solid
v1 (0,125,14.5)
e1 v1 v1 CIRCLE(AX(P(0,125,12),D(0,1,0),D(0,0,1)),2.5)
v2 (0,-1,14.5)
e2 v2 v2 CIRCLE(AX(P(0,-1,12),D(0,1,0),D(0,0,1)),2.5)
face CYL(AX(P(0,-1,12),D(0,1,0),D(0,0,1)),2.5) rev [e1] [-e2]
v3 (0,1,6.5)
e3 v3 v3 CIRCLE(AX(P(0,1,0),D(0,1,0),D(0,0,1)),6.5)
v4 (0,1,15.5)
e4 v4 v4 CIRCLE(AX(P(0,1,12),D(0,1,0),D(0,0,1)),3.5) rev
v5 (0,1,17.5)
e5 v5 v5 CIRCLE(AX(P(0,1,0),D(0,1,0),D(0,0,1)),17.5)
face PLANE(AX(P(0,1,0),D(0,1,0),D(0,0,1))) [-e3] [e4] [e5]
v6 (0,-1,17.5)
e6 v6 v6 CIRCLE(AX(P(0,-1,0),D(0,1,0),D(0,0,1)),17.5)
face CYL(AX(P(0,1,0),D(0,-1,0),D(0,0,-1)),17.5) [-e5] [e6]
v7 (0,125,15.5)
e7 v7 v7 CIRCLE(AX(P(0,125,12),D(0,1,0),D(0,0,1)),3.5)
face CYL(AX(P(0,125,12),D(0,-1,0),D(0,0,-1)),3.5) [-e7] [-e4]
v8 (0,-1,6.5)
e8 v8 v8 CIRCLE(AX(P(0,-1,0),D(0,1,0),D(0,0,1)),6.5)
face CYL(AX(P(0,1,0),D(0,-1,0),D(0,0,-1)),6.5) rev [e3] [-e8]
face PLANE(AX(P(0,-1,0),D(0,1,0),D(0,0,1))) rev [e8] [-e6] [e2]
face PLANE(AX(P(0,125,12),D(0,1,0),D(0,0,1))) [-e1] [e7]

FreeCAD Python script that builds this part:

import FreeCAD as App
import Part
import Sketcher
Q = App.Units.Quantity

doc = App.newDocument("Part")
body = doc.addObject("PartDesign::Body", "Body")

sketch1 = body.newObject("Sketcher::SketchObject", "Sketch")
sketch1.AttachmentSupport = (doc.getObject("XZ_Plane"), [""])
sketch1.MapMode = "FlatFace"
sketch1.addGeometry([
    Part.Circle(App.Vector(0, 0, 0), App.Vector(0, 0, 1), 18),
    Part.Circle(App.Vector(0, 0, 0), App.Vector(0, 0, 1), 6),
], False)
sketch1.addConstraint([
    Sketcher.Constraint("Coincident", 0, 3, -1, 1),
    Sketcher.Constraint("Coincident", 1, 3, -1, 1),
    Sketcher.Constraint("Diameter", 0, Q("35 mm")),
    Sketcher.Constraint("Diameter", 1, Q("13 mm")),
])
pad1 = body.newObject("PartDesign::Pad", "Pad")
pad1.Profile = sketch1
pad1.Length = 2
pad1.Midplane = True

sketch2 = body.newObject("Sketcher::SketchObject", "Sketch001")
sketch2.AttachmentSupport = (doc.getObject("XZ_Plane"), [""])
sketch2.MapMode = "FlatFace"
sketch2.addGeometry(Part.Circle(App.Vector(0, 12, 0), App.Vector(0, 0, 1), 3.5), False)
sketch2.addConstraint([
    Sketcher.Constraint("PointOnObject", 0, 3, -2),
    Sketcher.Constraint("Diameter", 0, Q("7 mm")),
    Sketcher.Constraint("DistanceY", -1, 1, 0, 3, Q("12 mm")),
])
pad2 = body.newObject("PartDesign::Pad", "Pad001")
pad2.Profile = sketch2
pad2.Length = 125
pad2.Reversed = True

sketch3 = body.newObject("Sketcher::SketchObject", "Sketch002")
sketch3.AttachmentSupport = (doc.getObject("XZ_Plane"), [""])
sketch3.MapMode = "FlatFace"
sketch3.AttachmentOffset = App.Placement(App.Vector(0, 0, -125), App.Rotation())
sketch3.addGeometry(Part.Circle(App.Vector(0, 12, 0), App.Vector(0, 0, 1), 2.5), False)
sketch3.addConstraint([
    Sketcher.Constraint("PointOnObject", 0, 3, -2),
    Sketcher.Constraint("Diameter", 0, Q("5 mm")),
    Sketcher.Constraint("DistanceY", -1, 1, 0, 3, Q("12 mm")),
])
pocket1 = body.newObject("PartDesign::Pocket", "Pocket")
pocket1.Profile = sketch3
pocket1.Type = "ThroughAll"
pocket1.Reversed = True

doc.recompute()
